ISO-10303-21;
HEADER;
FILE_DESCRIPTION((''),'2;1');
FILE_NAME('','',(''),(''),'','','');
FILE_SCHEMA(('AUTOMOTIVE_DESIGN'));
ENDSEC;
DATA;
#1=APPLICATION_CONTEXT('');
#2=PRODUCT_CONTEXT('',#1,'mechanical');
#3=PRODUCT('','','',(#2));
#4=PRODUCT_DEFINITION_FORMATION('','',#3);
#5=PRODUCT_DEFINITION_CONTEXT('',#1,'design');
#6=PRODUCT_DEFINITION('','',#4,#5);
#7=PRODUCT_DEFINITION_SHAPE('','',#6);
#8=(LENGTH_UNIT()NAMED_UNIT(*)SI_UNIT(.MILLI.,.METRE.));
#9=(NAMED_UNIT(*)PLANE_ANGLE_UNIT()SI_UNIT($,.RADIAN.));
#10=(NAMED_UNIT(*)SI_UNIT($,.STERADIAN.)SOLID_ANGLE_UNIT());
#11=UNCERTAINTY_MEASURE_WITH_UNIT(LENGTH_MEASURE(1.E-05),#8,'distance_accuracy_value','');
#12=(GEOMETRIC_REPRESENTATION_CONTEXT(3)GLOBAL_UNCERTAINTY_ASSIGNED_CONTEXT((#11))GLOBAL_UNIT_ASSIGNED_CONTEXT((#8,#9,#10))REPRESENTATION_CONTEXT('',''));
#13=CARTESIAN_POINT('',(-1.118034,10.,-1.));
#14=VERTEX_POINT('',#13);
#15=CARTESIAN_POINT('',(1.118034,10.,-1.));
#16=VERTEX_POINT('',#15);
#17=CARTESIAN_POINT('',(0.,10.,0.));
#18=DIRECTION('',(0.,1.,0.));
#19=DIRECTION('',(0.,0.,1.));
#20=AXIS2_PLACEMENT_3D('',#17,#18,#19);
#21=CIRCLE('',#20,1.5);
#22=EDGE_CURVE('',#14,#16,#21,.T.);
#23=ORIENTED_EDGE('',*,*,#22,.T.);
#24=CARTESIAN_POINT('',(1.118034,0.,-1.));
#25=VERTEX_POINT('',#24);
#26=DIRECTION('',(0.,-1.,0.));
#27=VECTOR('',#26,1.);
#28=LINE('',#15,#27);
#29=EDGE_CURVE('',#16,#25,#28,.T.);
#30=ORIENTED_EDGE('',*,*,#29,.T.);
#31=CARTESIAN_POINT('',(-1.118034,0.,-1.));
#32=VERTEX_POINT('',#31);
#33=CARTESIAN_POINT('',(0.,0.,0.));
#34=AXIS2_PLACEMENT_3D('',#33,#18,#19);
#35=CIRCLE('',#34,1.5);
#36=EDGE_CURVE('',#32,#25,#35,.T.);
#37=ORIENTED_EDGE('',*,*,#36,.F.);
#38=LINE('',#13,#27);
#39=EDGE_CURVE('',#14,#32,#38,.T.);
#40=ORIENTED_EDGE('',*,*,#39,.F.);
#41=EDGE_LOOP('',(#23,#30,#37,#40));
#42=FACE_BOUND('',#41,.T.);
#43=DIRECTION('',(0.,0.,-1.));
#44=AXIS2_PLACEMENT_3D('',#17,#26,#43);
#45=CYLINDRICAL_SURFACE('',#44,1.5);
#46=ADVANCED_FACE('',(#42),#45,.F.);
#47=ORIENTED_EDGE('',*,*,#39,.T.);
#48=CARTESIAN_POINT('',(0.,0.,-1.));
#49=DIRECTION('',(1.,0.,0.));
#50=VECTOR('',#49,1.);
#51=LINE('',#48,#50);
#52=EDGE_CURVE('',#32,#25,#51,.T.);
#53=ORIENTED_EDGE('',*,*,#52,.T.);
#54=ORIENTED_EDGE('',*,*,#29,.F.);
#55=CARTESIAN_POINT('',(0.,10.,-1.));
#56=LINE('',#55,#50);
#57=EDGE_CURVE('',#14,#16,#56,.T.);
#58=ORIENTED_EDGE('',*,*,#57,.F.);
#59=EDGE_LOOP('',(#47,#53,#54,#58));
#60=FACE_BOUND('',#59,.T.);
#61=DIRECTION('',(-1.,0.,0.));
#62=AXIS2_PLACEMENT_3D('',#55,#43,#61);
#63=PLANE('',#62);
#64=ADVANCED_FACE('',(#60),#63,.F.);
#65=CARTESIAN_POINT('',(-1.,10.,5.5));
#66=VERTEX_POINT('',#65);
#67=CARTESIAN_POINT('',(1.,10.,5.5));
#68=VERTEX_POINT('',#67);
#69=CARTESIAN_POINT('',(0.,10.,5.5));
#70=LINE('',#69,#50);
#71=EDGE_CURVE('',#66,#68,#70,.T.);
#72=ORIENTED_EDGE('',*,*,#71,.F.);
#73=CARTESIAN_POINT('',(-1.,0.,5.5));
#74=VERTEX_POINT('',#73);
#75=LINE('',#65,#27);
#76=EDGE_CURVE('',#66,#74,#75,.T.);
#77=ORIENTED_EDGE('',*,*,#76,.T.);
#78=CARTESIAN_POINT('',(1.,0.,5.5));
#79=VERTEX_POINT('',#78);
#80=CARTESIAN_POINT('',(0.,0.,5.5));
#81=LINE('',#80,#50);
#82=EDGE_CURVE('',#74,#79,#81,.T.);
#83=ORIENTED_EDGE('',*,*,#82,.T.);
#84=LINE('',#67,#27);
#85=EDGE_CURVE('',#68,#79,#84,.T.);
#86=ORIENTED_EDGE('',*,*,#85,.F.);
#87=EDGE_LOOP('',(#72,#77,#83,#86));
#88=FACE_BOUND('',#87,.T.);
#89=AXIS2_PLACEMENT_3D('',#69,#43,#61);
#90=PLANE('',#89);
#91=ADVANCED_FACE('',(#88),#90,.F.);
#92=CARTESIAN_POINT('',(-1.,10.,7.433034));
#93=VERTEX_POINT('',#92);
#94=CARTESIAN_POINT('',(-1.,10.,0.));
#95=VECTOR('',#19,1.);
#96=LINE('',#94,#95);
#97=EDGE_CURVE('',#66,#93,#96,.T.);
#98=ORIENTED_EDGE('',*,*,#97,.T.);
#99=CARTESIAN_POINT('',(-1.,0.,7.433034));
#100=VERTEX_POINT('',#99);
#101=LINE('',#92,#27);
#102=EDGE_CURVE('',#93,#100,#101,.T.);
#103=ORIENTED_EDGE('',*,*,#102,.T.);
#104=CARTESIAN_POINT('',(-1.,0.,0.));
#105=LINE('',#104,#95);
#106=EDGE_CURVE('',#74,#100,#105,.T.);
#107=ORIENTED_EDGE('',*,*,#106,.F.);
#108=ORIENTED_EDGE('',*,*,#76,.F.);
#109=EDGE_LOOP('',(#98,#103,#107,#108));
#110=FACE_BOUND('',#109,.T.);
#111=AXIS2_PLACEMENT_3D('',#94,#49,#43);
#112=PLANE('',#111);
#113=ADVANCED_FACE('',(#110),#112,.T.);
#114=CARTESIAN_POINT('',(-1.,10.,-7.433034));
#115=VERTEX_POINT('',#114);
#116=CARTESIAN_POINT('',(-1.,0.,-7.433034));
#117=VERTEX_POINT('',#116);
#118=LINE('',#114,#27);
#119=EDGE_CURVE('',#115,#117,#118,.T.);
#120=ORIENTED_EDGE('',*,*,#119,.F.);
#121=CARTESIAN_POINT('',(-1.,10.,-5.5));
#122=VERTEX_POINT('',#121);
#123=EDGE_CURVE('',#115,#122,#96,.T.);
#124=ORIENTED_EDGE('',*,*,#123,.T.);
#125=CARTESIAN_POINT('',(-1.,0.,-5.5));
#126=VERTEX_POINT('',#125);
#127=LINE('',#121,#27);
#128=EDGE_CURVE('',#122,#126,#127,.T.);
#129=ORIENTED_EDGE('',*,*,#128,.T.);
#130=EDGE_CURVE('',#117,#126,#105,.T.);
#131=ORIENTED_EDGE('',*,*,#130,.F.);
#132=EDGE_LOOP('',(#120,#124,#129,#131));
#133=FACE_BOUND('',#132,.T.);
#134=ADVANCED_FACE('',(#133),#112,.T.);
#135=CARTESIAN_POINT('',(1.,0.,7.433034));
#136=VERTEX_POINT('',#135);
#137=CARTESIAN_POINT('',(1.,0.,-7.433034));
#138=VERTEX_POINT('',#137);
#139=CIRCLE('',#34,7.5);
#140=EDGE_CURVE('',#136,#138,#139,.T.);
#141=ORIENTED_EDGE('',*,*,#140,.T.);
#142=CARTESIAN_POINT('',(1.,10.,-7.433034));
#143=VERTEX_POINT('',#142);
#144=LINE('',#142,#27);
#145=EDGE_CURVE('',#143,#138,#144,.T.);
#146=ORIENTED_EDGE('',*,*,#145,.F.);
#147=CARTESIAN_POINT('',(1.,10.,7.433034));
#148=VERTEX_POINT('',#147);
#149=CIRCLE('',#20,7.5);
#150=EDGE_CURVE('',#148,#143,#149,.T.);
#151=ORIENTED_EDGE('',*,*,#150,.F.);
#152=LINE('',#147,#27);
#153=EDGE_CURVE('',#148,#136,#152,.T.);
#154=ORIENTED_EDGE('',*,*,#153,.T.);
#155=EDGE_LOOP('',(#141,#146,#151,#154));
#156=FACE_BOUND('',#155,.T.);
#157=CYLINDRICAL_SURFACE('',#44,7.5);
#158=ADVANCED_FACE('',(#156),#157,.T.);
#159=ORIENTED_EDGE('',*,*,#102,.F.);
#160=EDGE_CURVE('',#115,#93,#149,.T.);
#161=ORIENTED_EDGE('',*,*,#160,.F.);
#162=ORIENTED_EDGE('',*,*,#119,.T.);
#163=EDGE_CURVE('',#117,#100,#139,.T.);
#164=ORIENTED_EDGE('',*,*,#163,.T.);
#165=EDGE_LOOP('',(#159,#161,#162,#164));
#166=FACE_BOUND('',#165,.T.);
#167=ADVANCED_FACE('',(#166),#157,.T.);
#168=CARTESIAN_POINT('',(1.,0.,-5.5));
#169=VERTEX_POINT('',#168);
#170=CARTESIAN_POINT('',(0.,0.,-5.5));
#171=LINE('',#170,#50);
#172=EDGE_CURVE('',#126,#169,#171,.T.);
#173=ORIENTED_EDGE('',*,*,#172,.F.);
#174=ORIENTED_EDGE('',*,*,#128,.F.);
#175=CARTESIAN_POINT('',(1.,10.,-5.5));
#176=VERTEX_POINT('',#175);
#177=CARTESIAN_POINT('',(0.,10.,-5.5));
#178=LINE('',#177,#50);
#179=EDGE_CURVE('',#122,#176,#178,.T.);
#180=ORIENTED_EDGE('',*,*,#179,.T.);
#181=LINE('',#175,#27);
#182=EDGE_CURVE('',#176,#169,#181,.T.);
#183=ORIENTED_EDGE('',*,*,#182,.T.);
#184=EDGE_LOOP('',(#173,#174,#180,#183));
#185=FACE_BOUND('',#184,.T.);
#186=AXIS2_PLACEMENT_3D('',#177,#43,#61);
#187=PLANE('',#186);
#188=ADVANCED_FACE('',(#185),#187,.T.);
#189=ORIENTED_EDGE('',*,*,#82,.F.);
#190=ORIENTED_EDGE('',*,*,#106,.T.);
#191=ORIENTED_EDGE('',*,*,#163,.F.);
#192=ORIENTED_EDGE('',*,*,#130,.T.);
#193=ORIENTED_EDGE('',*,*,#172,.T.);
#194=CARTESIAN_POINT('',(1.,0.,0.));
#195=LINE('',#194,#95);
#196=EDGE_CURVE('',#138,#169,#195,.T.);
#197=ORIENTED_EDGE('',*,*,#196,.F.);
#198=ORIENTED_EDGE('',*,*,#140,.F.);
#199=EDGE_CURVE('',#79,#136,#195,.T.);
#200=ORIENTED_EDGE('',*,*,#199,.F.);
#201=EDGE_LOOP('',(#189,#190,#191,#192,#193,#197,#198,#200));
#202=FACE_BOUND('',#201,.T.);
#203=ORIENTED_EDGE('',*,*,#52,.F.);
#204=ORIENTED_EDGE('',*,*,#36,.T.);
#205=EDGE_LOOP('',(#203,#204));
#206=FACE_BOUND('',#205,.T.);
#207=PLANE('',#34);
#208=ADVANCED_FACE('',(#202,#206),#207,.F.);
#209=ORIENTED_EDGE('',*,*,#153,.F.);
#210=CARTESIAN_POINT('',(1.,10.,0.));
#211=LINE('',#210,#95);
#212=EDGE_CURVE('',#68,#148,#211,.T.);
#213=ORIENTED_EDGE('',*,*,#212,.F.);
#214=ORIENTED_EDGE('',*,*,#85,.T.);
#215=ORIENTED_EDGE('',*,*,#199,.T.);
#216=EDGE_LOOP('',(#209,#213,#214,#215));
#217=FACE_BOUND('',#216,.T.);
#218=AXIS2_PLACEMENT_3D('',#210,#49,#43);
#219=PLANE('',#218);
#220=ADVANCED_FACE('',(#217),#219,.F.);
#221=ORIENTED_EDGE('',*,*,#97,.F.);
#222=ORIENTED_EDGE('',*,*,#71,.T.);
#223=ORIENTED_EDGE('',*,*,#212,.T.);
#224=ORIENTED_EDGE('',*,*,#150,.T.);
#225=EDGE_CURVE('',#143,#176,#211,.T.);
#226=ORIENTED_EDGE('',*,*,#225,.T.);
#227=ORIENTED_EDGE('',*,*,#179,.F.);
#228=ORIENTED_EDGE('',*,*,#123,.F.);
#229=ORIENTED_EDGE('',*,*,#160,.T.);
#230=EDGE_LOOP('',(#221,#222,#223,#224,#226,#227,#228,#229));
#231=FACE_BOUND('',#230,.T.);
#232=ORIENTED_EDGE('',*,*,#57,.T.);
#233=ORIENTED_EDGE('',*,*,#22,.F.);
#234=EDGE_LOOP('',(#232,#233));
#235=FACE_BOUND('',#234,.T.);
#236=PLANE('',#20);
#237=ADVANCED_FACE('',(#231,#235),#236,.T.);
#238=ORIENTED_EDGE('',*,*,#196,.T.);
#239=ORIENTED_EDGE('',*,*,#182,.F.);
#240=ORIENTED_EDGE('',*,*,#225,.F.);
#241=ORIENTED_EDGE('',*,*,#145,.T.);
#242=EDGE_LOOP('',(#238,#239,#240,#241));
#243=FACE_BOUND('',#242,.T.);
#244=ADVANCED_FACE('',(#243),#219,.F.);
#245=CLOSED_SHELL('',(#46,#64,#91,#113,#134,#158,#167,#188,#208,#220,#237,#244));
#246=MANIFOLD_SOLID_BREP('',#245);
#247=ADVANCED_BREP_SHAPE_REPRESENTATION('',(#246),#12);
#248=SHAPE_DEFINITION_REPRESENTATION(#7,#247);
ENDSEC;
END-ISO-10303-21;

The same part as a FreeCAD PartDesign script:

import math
import FreeCAD as App
import Part
import Sketcher
from FreeCAD import Vector
Q = App.Units.Quantity

doc = App.newDocument("Part")
body = doc.addObject("PartDesign::Body", "Body")

# Sketch on XZ plane
sketch1 = body.newObject("Sketcher::SketchObject", "Sketch")
sketch1.AttachmentSupport = (doc.getObject("XZ_Plane"), [""])
sketch1.MapMode = "FlatFace"
sketch1.addGeometry([
    Part.LineSegment(Vector(-1, -5.5, 0), Vector(-1, -7.433034, 0)),  # 0
    Part.ArcOfCircle(Part.Circle(Vector(0, 0, 0), Vector(0, 0, 1), 7.5), math.radians(97.662256), math.radians(262.337744)),  # 1
    Part.LineSegment(Vector(-1, 7.433034, 0), Vector(-1, 5.5, 0)),  # 2
    Part.LineSegment(Vector(-1, 5.5, 0), Vector(1, 5.5, 0)),  # 3
    Part.LineSegment(Vector(1, 5.5, 0), Vector(1, 7.433034, 0)),  # 4
    Part.ArcOfCircle(Part.Circle(Vector(0, 0, 0), Vector(0, 0, 1), 7.5), math.radians(0), math.radians(82.337744)),  # 5
    Part.ArcOfCircle(Part.Circle(Vector(0, 0, 0), Vector(0, 0, 1), 7.5), math.radians(-82.337744), math.radians(0)),  # 6
    Part.LineSegment(Vector(1, -7.433034, 0), Vector(1, -5.5, 0)),  # 7
    Part.LineSegment(Vector(1, -5.5, 0), Vector(-1, -5.5, 0)),  # 8
    Part.ArcOfCircle(Part.Circle(Vector(0, 0, 0), Vector(0, 0, 1), 1.5), math.radians(-41.810315), math.radians(0)),  # 9
    Part.ArcOfCircle(Part.Circle(Vector(0, 0, 0), Vector(0, 0, 1), 1.5), math.radians(0), math.radians(221.810315)),  # 10
    Part.LineSegment(Vector(-1.118034, -1, 0), Vector(1.118034, -1, 0)),  # 11
], False)
sketch1.addConstraint([
    Sketcher.Constraint("Coincident", 0, 2, 1, 2),
    Sketcher.Constraint("Coincident", 1, 1, 2, 1),
    Sketcher.Constraint("Coincident", 2, 2, 3, 1),
    Sketcher.Constraint("Coincident", 3, 2, 4, 1),
    Sketcher.Constraint("Coincident", 4, 2, 5, 2),
    Sketcher.Constraint("Tangent", 5, 1, 6, 2),
    Sketcher.Constraint("Coincident", 6, 1, 7, 1),
    Sketcher.Constraint("Coincident", 7, 2, 8, 1),
    Sketcher.Constraint("Coincident", 8, 2, 0, 1),
    Sketcher.Constraint("Tangent", 9, 2, 10, 1),
    Sketcher.Constraint("Coincident", 10, 2, 11, 1),
    Sketcher.Constraint("Coincident", 11, 2, 9, 1),
    Sketcher.Constraint("Vertical", 0),
    Sketcher.Constraint("Vertical", 2),
    Sketcher.Constraint("Horizontal", 3),
    Sketcher.Constraint("Vertical", 4),
    Sketcher.Constraint("Vertical", 7),
    Sketcher.Constraint("Horizontal", 8),
    Sketcher.Constraint("Horizontal", 11),
    Sketcher.Constraint("Coincident", 1, 3, -1, 1),
    Sketcher.Constraint("Coincident", 5, 3, -1, 1),
    Sketcher.Constraint("Coincident", 9, 3, -1, 1),
    Sketcher.Constraint("Equal", 1, 5),
    Sketcher.Constraint("Equal", 5, 6),
    Sketcher.Constraint("Equal", 9, 10),
    Sketcher.Constraint("Symmetric", 2, 2, 7, 2, -1, 1),
    Sketcher.Constraint("PointOnObject", 5, 1, -1),
    Sketcher.Constraint("PointOnObject", 9, 2, -1),
    Sketcher.Constraint("Horizontal", 1, 1, 4, 2),
    Sketcher.Constraint("Horizontal", 0, 2, 6, 1),
    Sketcher.Constraint("Radius", 1, Q("7.5 mm")),
    Sketcher.Constraint("Radius", 9, Q("1.5 mm")),
    Sketcher.Constraint("DistanceX", 3, 1, 3, 2, Q("2 mm")),
    Sketcher.Constraint("DistanceY", 10, 2, -1, 1, Q("1 mm")),
    Sketcher.Constraint("DistanceY", -1, 1, 2, 2, Q("5.5 mm")),
])
pad1 = body.newObject("PartDesign::Pad", "Pad")
pad1.Profile = sketch1
pad1.Length = 10
pad1.Reversed = True

doc.recompute()
